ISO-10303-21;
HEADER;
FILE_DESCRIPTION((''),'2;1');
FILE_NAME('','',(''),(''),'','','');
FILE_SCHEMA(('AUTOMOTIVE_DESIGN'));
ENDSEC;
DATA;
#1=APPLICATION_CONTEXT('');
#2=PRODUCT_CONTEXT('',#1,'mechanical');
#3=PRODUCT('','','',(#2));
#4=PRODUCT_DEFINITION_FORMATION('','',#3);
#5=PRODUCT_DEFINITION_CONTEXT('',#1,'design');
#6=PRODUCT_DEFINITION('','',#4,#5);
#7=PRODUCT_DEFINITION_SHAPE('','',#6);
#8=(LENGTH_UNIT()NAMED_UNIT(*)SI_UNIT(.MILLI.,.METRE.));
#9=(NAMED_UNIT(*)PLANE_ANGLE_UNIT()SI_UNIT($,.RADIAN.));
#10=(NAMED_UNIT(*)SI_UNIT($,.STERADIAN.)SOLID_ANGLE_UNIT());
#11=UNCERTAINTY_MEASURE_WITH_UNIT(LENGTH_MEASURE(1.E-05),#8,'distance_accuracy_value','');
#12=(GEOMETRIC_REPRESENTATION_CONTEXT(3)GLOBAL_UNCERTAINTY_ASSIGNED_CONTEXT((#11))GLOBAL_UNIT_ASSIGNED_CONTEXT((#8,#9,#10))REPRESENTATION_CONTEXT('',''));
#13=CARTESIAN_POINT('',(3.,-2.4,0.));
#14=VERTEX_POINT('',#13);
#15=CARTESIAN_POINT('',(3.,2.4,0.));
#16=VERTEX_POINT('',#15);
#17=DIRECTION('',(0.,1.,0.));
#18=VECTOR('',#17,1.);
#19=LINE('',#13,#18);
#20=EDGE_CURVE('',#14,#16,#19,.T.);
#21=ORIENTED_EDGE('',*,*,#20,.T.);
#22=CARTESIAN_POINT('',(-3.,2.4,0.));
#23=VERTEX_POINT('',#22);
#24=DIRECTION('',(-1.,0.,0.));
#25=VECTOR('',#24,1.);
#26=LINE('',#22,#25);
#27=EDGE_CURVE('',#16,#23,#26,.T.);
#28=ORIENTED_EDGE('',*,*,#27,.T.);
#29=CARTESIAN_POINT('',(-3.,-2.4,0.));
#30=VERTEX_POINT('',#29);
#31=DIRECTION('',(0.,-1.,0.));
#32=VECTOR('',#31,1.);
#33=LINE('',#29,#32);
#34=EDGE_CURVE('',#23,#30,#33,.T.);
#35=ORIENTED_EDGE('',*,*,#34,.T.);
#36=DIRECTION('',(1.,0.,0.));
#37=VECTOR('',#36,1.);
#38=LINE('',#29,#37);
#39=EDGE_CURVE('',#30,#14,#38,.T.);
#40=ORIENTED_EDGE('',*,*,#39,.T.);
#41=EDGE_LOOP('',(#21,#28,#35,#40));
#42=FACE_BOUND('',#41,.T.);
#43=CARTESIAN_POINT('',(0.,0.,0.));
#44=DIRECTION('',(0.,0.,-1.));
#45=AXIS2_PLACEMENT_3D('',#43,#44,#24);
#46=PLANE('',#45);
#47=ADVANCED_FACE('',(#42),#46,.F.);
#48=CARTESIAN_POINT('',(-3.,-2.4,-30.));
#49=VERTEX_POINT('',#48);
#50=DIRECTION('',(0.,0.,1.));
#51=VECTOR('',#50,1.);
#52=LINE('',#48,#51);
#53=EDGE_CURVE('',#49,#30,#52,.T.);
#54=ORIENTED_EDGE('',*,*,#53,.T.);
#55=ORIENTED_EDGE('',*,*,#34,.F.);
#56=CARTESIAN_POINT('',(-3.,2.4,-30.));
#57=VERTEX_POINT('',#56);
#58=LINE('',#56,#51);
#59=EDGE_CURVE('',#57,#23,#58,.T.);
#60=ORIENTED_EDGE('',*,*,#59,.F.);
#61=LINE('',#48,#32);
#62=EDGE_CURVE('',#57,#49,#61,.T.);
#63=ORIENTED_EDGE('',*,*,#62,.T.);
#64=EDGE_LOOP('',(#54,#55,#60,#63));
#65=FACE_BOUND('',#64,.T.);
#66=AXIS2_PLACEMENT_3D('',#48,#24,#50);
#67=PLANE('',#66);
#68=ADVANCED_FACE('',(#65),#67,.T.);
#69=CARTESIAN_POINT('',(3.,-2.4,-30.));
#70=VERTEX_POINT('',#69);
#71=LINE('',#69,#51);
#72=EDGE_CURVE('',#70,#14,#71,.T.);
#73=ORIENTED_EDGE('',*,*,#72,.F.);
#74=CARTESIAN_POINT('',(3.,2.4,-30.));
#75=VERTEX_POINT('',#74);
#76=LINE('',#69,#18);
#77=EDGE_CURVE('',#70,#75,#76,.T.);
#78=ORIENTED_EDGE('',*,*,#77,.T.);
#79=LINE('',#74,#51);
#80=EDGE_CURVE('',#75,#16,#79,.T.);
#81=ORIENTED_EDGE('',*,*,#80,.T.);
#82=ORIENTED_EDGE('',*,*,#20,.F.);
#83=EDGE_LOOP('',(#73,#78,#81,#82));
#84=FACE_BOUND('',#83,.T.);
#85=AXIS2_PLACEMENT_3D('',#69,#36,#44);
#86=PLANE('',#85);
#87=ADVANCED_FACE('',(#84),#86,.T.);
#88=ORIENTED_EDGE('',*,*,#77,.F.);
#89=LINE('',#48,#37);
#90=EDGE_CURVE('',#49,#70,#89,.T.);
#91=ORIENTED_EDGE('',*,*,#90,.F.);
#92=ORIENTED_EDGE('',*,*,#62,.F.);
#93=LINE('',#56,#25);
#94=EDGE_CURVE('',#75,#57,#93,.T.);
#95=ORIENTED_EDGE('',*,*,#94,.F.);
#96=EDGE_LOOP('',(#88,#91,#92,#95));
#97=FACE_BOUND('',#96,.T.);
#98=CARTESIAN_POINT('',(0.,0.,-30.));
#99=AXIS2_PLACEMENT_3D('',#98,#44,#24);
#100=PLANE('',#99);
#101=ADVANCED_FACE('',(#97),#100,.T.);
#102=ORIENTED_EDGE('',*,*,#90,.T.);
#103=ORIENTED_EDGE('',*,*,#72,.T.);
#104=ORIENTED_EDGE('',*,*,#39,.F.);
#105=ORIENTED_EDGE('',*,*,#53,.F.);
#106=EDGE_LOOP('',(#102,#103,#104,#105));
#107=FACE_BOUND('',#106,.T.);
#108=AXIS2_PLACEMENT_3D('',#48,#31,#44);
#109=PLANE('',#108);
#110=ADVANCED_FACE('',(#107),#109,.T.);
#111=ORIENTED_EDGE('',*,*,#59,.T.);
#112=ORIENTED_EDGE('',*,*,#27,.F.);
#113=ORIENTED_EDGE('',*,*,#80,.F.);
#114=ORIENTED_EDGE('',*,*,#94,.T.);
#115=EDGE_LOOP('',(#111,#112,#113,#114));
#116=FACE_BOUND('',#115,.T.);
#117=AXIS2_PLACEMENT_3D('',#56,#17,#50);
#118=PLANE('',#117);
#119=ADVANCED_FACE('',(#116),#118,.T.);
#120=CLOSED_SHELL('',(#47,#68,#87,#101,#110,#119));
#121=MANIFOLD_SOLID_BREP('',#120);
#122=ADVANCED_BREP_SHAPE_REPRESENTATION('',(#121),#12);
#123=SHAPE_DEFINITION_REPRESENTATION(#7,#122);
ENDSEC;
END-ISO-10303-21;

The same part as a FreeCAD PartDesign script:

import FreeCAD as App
import Part
import Sketcher

V = App.Vector

doc = App.newDocument("Part")
body = doc.addObject("PartDesign::Body", "Body")

# Sketch on XY plane
sketch1 = body.newObject("Sketcher::SketchObject", "Sketch")
sketch1.AttachmentSupport = (doc.getObject("XY_Plane"), [""])
sketch1.MapMode = "FlatFace"
sketch1.addGeometry(Part.LineSegment(V(-3, 2.4, 0), V(-3, -2.4, 0)), False)
sketch1.addGeometry(Part.LineSegment(V(-3, -2.4, 0), V(3, -2.4, 0)), False)
sketch1.addGeometry(Part.LineSegment(V(3, -2.4, 0), V(3, 2.4, 0)), False)
sketch1.addGeometry(Part.LineSegment(V(3, 2.4, 0), V(-3, 2.4, 0)), False)
sketch1.addConstraint(Sketcher.Constraint("Coincident", 0, 2, 1, 1))
sketch1.addConstraint(Sketcher.Constraint("Coincident", 1, 2, 2, 1))
sketch1.addConstraint(Sketcher.Constraint("Coincident", 2, 2, 3, 1))
sketch1.addConstraint(Sketcher.Constraint("Coincident", 3, 2, 0, 1))
sketch1.addConstraint(Sketcher.Constraint("Vertical", 0))
sketch1.addConstraint(Sketcher.Constraint("Horizontal", 1))
sketch1.addConstraint(Sketcher.Constraint("Vertical", 2))
sketch1.addConstraint(Sketcher.Constraint("Horizontal", 3))
sketch1.addConstraint(Sketcher.Constraint("Symmetric", 0, 2, 2, 2, -1, 1))
sketch1.addConstraint(Sketcher.Constraint("DistanceX", 1, 1, 1, 2, 6.0))
sketch1.addConstraint(Sketcher.Constraint("DistanceY", 0, 2, 0, 1, 4.8))
pad1 = body.newObject("PartDesign::Pad", "Pad")
pad1.Profile = sketch1
pad1.Length = 30
pad1.Reversed = True

doc.recompute()
